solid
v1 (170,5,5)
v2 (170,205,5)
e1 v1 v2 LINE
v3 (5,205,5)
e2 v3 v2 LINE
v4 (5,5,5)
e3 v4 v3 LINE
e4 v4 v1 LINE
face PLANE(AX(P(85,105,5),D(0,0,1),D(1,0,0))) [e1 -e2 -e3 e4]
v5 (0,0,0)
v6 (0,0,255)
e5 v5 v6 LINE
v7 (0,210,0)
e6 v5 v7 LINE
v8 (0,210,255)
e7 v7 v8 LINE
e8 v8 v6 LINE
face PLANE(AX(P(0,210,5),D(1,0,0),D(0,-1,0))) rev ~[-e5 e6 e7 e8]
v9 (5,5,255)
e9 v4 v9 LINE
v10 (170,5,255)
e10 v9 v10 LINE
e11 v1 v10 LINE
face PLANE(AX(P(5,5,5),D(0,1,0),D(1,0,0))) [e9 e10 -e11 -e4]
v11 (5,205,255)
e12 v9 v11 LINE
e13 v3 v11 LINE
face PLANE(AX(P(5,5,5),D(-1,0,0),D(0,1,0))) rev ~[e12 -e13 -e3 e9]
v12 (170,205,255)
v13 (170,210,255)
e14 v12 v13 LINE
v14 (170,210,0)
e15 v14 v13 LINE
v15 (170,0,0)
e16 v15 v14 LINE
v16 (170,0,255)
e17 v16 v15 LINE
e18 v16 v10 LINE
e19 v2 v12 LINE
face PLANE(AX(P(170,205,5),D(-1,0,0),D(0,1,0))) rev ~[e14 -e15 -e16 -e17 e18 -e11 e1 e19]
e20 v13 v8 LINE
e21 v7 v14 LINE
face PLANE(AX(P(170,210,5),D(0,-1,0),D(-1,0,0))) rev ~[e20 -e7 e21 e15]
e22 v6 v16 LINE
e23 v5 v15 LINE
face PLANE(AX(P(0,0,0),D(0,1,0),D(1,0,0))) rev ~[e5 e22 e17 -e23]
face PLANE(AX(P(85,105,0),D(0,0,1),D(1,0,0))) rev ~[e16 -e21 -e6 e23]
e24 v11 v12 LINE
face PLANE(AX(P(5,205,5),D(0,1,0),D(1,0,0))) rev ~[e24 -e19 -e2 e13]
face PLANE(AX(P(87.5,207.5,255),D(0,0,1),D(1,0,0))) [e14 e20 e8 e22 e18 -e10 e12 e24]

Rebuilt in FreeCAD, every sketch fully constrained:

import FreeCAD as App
import Part
import Sketcher
from FreeCAD import Vector


def add_polygon(sketch, points):
    """Adds a closed chain of lines whose ends are joined by coincident constraints."""
    first, n = sketch.GeometryCount, len(points)
    for a, b in zip(points, points[1:] + points[:1]):
        sketch.addGeometry(Part.LineSegment(App.Vector(*a, 0), App.Vector(*b, 0)), False)
    for i in range(n):
        sketch.addConstraint(Sketcher.Constraint("Coincident", first + i, 2, first + (i + 1) % n, 1))

doc = App.newDocument("Part")
body = doc.addObject("PartDesign::Body", "Body")

# Sketch on XY plane
sketch1 = body.newObject("Sketcher::SketchObject", "Sketch")
sketch1.AttachmentSupport = (doc.getObject("XY_Plane"), [""])
sketch1.MapMode = "FlatFace"
add_polygon(sketch1, [(0, 210), (0, 0), (170, 0), (170, 210)])  # lines 0-3
sketch1.addConstraint(Sketcher.Constraint("Vertical", 0))
sketch1.addConstraint(Sketcher.Constraint("Horizontal", 1))
sketch1.addConstraint(Sketcher.Constraint("Vertical", 2))
sketch1.addConstraint(Sketcher.Constraint("Horizontal", 3))
sketch1.addConstraint(Sketcher.Constraint("Coincident", 0, 2, -1, 1))
sketch1.addConstraint(Sketcher.Constraint("DistanceX", 1, 1, 1, 2, 170.0))
sketch1.addConstraint(Sketcher.Constraint("DistanceY", 0, 2, 0, 1, 210.0))
pad1 = body.newObject("PartDesign::Pad", "Pad")
pad1.Profile = sketch1
pad1.Length = 5

# Sketch on XY plane
sketch2 = body.newObject("Sketcher::SketchObject", "Sketch001")
sketch2.AttachmentSupport = (doc.getObject("XY_Plane"), [""])
sketch2.MapMode = "FlatFace"
sketch2.AttachmentOffset = App.Placement(Vector(0, 0, 5), App.Rotation())
add_polygon(sketch2, [(170, 205), (170, 210), (0, 210), (0, 0), (170, 0), (170, 5), (5, 5), (5, 205)])  # lines 0-7
sketch2.addConstraint(Sketcher.Constraint("Vertical", 0))
sketch2.addConstraint(Sketcher.Constraint("Horizontal", 1))
sketch2.addConstraint(Sketcher.Constraint("Vertical", 2))
sketch2.addConstraint(Sketcher.Constraint("Horizontal", 3))
sketch2.addConstraint(Sketcher.Constraint("Vertical", 4))
sketch2.addConstraint(Sketcher.Constraint("Horizontal", 5))
sketch2.addConstraint(Sketcher.Constraint("Vertical", 6))
sketch2.addConstraint(Sketcher.Constraint("Horizontal", 7))
sketch2.addConstraint(Sketcher.Constraint("Coincident", 2, 2, -1, 1))
sketch2.addConstraint(Sketcher.Constraint("Vertical", 0, 2, 3, 2))
sketch2.addConstraint(Sketcher.Constraint("Equal", 0, 4))
sketch2.addConstraint(Sketcher.Constraint("DistanceX", 1, 2, 1, 1, 170.0))
sketch2.addConstraint(Sketcher.Constraint("DistanceX", 5, 2, 5, 1, 165.0))
sketch2.addConstraint(Sketcher.Constraint("DistanceY", 0, 1, 0, 2, 5.0))
sketch2.addConstraint(Sketcher.Constraint("DistanceY", 2, 2, 2, 1, 210.0))
pad2 = body.newObject("PartDesign::Pad", "Pad001")
pad2.Profile = sketch2
pad2.Length = 250

doc.recompute()
